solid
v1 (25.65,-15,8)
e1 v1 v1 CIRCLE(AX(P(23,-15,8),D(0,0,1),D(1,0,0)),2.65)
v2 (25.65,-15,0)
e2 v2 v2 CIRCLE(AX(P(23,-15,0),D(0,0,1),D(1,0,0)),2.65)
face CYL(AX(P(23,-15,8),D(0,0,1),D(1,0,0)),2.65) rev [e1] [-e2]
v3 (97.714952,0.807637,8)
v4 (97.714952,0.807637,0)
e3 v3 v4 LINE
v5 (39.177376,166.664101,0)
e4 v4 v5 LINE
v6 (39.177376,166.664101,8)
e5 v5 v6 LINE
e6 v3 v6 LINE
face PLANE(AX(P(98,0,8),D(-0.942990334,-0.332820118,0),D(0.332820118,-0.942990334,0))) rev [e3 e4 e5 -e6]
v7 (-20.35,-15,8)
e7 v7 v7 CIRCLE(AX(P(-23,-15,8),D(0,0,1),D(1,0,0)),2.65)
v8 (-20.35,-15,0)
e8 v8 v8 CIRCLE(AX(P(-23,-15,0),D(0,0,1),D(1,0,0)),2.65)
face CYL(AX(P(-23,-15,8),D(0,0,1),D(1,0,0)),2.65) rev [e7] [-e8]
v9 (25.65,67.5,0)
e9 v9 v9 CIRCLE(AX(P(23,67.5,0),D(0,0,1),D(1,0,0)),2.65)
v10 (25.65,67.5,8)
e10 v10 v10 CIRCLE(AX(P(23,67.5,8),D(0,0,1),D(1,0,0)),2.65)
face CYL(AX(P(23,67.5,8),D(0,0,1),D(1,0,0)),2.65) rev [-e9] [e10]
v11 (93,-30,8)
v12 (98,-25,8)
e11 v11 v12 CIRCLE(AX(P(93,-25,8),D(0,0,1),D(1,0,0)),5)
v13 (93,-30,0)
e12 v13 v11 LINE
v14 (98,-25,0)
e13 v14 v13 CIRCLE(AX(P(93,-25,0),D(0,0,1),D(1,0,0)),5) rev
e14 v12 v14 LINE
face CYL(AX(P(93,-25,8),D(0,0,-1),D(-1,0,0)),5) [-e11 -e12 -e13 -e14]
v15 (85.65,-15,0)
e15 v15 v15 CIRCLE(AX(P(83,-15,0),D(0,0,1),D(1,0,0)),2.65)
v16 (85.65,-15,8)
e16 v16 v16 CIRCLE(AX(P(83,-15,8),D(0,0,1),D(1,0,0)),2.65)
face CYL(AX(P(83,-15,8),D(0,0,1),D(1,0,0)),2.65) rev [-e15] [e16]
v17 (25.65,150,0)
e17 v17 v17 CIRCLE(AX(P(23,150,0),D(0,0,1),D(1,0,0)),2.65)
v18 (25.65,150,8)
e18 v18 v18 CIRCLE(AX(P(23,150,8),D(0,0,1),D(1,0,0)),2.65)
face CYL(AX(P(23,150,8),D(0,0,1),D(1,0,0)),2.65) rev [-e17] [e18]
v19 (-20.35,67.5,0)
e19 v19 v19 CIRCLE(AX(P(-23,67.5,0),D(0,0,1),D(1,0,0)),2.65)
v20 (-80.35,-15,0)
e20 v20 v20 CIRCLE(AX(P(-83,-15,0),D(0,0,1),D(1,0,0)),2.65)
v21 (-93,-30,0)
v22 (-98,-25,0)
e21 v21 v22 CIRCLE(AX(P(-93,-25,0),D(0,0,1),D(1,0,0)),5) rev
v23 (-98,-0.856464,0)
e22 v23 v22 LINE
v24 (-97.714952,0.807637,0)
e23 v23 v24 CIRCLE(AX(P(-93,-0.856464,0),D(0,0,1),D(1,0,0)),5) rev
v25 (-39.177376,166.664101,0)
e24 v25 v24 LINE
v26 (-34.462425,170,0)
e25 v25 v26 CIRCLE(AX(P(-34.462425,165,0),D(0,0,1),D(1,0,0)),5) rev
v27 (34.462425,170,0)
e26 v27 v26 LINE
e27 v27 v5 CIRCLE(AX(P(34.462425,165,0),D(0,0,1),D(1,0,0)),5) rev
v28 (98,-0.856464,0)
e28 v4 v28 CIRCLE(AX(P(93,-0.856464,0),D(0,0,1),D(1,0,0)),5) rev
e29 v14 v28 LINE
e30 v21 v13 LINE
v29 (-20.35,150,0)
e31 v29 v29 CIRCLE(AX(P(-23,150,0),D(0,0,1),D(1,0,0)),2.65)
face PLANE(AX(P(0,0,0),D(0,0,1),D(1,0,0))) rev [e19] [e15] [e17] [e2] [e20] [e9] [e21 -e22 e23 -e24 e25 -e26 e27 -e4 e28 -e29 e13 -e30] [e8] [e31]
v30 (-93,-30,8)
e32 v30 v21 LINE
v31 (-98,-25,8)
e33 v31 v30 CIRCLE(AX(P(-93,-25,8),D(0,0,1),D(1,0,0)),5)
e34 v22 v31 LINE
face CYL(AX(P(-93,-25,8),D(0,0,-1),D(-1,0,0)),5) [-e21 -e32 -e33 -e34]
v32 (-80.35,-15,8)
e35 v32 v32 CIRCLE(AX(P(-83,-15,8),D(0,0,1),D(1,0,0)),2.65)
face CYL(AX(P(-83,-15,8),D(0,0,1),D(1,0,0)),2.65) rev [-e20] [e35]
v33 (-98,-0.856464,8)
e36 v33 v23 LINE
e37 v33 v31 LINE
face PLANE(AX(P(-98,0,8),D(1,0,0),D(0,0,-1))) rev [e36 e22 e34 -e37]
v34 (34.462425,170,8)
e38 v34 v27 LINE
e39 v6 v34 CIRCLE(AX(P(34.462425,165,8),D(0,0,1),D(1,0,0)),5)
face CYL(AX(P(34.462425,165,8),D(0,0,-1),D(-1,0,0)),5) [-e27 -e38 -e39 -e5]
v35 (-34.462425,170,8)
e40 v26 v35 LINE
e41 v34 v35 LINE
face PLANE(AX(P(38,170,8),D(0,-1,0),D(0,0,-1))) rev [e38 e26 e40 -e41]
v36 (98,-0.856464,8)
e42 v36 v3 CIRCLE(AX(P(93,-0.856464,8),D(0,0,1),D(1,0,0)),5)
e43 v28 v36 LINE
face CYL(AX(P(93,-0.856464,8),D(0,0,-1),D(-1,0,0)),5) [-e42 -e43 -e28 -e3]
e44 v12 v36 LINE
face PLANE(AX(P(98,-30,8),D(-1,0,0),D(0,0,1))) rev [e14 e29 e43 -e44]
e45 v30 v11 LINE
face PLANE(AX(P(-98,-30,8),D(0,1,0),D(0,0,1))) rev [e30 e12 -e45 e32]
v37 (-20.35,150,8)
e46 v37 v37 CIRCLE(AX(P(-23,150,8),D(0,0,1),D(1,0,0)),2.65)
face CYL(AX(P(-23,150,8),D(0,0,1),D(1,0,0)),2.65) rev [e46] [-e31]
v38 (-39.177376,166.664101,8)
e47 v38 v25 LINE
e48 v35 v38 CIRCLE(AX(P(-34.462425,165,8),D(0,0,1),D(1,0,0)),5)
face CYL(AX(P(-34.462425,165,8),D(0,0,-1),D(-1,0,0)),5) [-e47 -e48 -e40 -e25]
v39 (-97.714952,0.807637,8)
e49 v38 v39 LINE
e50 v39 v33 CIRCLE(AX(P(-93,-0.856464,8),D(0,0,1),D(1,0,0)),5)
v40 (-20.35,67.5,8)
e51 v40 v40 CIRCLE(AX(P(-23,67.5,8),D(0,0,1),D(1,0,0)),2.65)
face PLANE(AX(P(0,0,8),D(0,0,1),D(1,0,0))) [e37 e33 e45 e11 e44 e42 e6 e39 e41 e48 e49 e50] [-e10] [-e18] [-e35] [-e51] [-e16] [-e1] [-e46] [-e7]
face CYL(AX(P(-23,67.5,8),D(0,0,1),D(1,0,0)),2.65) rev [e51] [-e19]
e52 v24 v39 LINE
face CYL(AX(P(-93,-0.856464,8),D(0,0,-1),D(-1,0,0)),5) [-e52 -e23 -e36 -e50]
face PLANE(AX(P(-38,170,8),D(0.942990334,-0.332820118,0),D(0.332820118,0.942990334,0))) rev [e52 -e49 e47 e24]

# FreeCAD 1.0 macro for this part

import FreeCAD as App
import Part
import Sketcher


def edges_at(feature, points):
    """Names of the edges that pass closest to the given points."""
    edges = feature.Shape.Edges
    near = lambda p: min(range(len(edges)), key=lambda i: edges[i].distToShape(Part.Vertex(*p))[0])
    return sorted({f"Edge{near(p) + 1}" for p in points})


def add_polygon(sketch, points):
    """Adds a closed chain of lines whose ends are joined by coincident constraints."""
    first, n = sketch.GeometryCount, len(points)
    for a, b in zip(points, points[1:] + points[:1]):
        sketch.addGeometry(Part.LineSegment(App.Vector(*a, 0), App.Vector(*b, 0)), False)
    for i in range(n):
        sketch.addConstraint(Sketcher.Constraint("Coincident", first + i, 2, first + (i + 1) % n, 1))

doc = App.newDocument("Part")
body = doc.addObject("PartDesign::Body", "Body")

# Sketch on XY plane
sketch1 = doc.addObject("Sketcher::SketchObject", "Sketch")
body.addObject(sketch1)
sketch1.AttachmentSupport = (doc.XY_Plane, [""])
sketch1.MapMode = "FlatFace"
add_polygon(sketch1, [(-98, -30), (98, -30), (98, 0), (38, 170), (-38, 170), (-98, 0)])  # lines 0-5
sketch1.addConstraint([
    Sketcher.Constraint("Horizontal", 0),
    Sketcher.Constraint("Vertical", 1),
    Sketcher.Constraint("Horizontal", 3),
    Sketcher.Constraint("Vertical", 5),
    Sketcher.Constraint("Symmetric", 1, 2, 4, 2, -1, 1),
    Sketcher.Constraint("PointOnObject", 1, 2, -1),
    Sketcher.Constraint("Equal", 2, 4),
    Sketcher.Constraint("DistanceX", 0, 1, 0, 2, 196.0),
    Sketcher.Constraint("DistanceX", 3, 2, 3, 1, 76.0),
    Sketcher.Constraint("DistanceY", 1, 1, 1, 2, 30.0),
    Sketcher.Constraint("DistanceY", -1, 1, 2, 2, 170.0),
])
pad1 = doc.addObject("PartDesign::Pad", "Pad")
body.addObject(pad1)
pad1.Profile = sketch1
pad1.Length = 8

# Sketch on XY plane
sketch2 = doc.addObject("Sketcher::SketchObject", "Sketch001")
body.addObject(sketch2)
sketch2.AttachmentSupport = (doc.XY_Plane, [""])
sketch2.MapMode = "FlatFace"
sketch2.AttachmentOffset = App.Placement(App.Vector(0, 0, 8), App.Rotation())
sketch2.addGeometry([
    Part.Circle(App.Vector(-23, 150, 0), App.Vector(0, 0, 1), 2.65),  # 0
    Part.Circle(App.Vector(-23, 67.5, 0), App.Vector(0, 0, 1), 2.65),  # 1
    Part.Circle(App.Vector(-23, -15, 0), App.Vector(0, 0, 1), 2.65),  # 2
    Part.Circle(App.Vector(23, -15, 0), App.Vector(0, 0, 1), 2.65),  # 3
    Part.Circle(App.Vector(23, 150, 0), App.Vector(0, 0, 1), 2.65),  # 4
    Part.Circle(App.Vector(23, 67.5, 0), App.Vector(0, 0, 1), 2.65),  # 5
    Part.Circle(App.Vector(-83, -15, 0), App.Vector(0, 0, 1), 2.65),  # 6
    Part.Circle(App.Vector(83, -15, 0), App.Vector(0, 0, 1), 2.65),  # 7
], False)
sketch2.addConstraint([
    Sketcher.Constraint("Equal", 0, 1),
    Sketcher.Constraint("Equal", 1, 2),
    Sketcher.Constraint("Equal", 2, 3),
    Sketcher.Constraint("Equal", 3, 4),
    Sketcher.Constraint("Equal", 4, 5),
    Sketcher.Constraint("Equal", 5, 6),
    Sketcher.Constraint("Equal", 6, 7),
    Sketcher.Constraint("Symmetric", 2, 3, 3, 3, -2),
    Sketcher.Constraint("Symmetric", 0, 3, 4, 3, -2),
    Sketcher.Constraint("Symmetric", 1, 3, 5, 3, -2),
    Sketcher.Constraint("Symmetric", 6, 3, 7, 3, -2),
    Sketcher.Constraint("Horizontal", 3, 3, 6, 3),
    Sketcher.Constraint("Vertical", 0, 3, 1, 3),
    Sketcher.Constraint("Vertical", 1, 3, 2, 3),
    Sketcher.Constraint("Diameter", 0, 5.3),
    Sketcher.Constraint("DistanceX", 0, 3, -1, 1, 23.0),
    Sketcher.Constraint("DistanceY", -1, 1, 0, 3, 150.0),
    Sketcher.Constraint("DistanceY", 2, 3, -1, 1, 15.0),
    Sketcher.Constraint("DistanceX", 6, 3, -1, 1, 83.0),
    Sketcher.Constraint("DistanceY", -1, 1, 1, 3, 67.5),
])
doc.recompute()
hole = doc.addObject("PartDesign::Hole", "Hole")
body.addObject(hole)
hole.Profile = sketch2
hole.ThreadType = "None"
hole.Diameter = 5.3
hole.DepthType = "ThroughAll"
doc.recompute()

fillet = doc.addObject("PartDesign::Fillet", "Fillet")
body.addObject(fillet)
fillet.Base = (hole, edges_at(hole, [
    (-98, 0, 4),
    (-38, 170, 4),
    (38, 170, 4),
    (98, 0, 4),
    (98, -30, 4),
    (-98, -30, 4),
]))
fillet.Radius = 5

doc.recompute()
